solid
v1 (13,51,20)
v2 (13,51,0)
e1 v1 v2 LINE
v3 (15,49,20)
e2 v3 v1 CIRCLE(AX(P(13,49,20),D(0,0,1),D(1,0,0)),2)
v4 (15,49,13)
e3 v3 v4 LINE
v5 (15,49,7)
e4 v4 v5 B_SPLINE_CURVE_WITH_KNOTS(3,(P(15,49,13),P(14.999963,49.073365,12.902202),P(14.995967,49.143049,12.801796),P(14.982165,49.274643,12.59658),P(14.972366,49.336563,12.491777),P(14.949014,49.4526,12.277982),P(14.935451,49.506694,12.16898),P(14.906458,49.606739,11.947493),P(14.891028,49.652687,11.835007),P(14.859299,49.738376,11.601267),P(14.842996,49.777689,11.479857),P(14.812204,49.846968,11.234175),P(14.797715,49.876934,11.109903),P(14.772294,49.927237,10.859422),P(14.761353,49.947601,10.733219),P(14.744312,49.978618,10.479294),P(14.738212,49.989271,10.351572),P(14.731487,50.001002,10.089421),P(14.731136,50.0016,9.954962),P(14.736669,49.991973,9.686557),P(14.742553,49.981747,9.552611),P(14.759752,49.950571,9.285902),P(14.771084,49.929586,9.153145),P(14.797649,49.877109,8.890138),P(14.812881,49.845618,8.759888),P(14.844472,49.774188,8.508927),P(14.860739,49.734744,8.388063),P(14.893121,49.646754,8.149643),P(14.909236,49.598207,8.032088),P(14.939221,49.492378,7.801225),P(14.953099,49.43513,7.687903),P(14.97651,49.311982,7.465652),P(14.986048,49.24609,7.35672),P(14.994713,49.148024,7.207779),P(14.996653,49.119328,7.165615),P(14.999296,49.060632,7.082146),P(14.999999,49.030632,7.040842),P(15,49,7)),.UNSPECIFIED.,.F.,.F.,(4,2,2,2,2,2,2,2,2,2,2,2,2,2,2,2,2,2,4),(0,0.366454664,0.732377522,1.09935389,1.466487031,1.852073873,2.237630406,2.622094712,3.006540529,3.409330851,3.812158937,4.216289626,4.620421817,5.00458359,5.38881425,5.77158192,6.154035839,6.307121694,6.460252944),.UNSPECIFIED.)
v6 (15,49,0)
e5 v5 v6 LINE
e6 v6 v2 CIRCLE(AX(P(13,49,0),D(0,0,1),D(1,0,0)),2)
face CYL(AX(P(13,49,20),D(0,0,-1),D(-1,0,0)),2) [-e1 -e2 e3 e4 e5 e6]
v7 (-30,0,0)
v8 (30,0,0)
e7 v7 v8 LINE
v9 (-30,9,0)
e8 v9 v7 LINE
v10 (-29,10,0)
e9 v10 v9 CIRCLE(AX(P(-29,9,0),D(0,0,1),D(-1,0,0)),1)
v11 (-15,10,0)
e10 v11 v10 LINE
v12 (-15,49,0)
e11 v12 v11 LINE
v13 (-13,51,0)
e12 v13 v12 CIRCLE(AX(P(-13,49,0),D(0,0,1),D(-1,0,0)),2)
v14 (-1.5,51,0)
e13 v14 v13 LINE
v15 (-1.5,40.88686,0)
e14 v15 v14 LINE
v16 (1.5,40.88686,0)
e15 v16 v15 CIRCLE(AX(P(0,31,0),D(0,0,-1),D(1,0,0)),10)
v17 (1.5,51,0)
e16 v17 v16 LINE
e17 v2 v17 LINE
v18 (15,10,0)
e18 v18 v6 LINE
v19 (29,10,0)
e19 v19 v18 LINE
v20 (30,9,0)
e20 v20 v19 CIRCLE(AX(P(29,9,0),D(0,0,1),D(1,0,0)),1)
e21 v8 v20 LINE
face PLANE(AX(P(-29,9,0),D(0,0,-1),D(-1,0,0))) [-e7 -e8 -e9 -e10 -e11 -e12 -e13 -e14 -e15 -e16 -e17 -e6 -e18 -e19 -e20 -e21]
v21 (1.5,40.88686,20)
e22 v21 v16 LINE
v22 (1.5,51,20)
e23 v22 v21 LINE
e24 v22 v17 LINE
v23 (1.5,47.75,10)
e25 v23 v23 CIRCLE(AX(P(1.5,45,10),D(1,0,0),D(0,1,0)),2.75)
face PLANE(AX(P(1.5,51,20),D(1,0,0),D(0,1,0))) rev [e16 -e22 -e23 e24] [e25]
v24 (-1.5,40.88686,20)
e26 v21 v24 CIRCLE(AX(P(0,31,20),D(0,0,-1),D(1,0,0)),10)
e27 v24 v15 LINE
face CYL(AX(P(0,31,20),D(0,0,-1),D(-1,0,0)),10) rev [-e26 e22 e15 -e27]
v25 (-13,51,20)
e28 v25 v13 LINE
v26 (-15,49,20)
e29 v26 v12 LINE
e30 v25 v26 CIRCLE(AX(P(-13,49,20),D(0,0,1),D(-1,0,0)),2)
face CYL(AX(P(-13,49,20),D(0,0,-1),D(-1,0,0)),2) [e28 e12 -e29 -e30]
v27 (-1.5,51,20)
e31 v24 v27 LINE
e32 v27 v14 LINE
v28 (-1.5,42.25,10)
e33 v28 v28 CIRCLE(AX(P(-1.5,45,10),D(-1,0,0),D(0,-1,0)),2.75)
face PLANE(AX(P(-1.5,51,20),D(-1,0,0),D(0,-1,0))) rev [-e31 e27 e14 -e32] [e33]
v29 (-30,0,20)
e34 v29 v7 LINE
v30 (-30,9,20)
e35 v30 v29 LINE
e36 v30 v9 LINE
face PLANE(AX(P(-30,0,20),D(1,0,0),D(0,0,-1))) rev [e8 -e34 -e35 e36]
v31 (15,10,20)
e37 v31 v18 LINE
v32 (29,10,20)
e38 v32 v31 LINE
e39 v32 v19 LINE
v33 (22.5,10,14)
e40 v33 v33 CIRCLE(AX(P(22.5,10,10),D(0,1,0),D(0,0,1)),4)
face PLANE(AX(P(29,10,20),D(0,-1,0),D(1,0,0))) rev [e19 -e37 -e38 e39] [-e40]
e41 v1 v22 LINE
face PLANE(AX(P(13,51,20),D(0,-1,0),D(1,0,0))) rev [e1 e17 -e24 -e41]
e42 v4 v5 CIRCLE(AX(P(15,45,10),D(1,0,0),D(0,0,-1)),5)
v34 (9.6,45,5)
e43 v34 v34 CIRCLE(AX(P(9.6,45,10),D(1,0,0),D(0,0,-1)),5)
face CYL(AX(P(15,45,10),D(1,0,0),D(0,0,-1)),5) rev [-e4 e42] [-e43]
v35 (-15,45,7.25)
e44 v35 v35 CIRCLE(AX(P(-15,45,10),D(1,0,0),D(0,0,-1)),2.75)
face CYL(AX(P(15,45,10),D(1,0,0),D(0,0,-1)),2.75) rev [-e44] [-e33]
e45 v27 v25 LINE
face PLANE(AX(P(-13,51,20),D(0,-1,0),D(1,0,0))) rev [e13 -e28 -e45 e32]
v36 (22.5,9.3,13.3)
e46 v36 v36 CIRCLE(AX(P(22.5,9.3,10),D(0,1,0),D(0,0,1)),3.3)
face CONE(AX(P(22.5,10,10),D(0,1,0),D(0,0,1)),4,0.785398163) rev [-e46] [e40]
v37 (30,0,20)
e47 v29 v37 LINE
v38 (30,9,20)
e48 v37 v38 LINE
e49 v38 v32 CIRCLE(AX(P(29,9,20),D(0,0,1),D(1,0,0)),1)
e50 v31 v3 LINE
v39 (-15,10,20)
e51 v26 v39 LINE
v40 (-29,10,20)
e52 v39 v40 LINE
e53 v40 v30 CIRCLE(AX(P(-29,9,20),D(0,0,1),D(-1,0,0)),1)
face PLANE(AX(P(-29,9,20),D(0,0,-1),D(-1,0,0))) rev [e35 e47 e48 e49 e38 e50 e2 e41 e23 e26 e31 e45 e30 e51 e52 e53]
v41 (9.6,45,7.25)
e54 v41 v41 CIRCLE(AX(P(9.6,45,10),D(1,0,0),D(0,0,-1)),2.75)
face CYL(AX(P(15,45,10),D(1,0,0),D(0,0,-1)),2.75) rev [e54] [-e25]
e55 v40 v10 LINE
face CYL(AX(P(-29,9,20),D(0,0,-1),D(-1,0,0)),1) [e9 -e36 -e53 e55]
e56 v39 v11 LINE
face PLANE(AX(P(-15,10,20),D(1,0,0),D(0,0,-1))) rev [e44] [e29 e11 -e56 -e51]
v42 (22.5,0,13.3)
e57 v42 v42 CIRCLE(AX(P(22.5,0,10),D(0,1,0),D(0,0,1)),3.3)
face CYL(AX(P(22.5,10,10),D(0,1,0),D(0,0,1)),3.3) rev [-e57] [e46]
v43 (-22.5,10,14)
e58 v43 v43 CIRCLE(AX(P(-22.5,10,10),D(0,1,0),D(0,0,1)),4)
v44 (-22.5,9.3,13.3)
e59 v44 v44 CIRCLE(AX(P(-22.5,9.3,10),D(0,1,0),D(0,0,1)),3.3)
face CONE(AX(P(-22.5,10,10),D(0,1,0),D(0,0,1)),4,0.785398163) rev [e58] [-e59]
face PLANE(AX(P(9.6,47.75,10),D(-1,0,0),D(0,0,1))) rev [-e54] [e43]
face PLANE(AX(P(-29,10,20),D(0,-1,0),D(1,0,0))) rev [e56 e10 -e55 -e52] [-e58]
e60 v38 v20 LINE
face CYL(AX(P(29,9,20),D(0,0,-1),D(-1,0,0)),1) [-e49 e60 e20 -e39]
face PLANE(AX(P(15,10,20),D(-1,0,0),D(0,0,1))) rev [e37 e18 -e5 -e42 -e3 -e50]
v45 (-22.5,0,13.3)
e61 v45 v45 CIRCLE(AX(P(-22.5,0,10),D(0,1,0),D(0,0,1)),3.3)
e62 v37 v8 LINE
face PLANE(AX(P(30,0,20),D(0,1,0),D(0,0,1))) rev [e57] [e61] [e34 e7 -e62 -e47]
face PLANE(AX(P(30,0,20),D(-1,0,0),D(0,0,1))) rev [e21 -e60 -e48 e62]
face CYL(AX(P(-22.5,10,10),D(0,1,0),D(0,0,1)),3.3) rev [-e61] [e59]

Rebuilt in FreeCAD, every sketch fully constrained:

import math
import FreeCAD as App
import Part
import Sketcher
Q = App.Units.Quantity

doc = App.newDocument("Part")
body = doc.addObject("PartDesign::Body", "Body")

sketch1 = body.newObject("Sketcher::SketchObject", "Sketch")
sketch1.AttachmentSupport = (doc.getObject("XY_Plane"), [""])
sketch1.MapMode = "FlatFace"
sketch1.addGeometry([
    Part.LineSegment(App.Vector(-30, 0, 0), App.Vector(30, 0, 0)),
    Part.LineSegment(App.Vector(30, 0, 0), App.Vector(30, 9, 0)),
    Part.ArcOfCircle(Part.Circle(App.Vector(29, 9, 0), App.Vector(0, 0, 1), 1), math.radians(0), math.radians(90)),
    Part.LineSegment(App.Vector(29, 10, 0), App.Vector(15, 10, 0)),
    Part.LineSegment(App.Vector(15, 10, 0), App.Vector(15, 49, 0)),
    Part.ArcOfCircle(Part.Circle(App.Vector(13, 49, 0), App.Vector(0, 0, 1), 2), math.radians(0), math.radians(90)),
    Part.LineSegment(App.Vector(13, 51, 0), App.Vector(1.5, 51, 0)),
    Part.LineSegment(App.Vector(1.5, 51, 0), App.Vector(1.5, 40.9, 0)),
    Part.ArcOfCircle(Part.Circle(App.Vector(0, 31, 0), App.Vector(0, 0, 1), 10), math.radians(99), math.radians(441)),
    Part.LineSegment(App.Vector(-1.5, 40.9, 0), App.Vector(-1.5, 51, 0)),
    Part.LineSegment(App.Vector(-1.5, 51, 0), App.Vector(-13, 51, 0)),
    Part.ArcOfCircle(Part.Circle(App.Vector(-13, 49, 0), App.Vector(0, 0, 1), 2), math.radians(90), math.radians(180)),
    Part.LineSegment(App.Vector(-15, 49, 0), App.Vector(-15, 10, 0)),
    Part.LineSegment(App.Vector(-15, 10, 0), App.Vector(-29, 10, 0)),
    Part.ArcOfCircle(Part.Circle(App.Vector(-29, 9, 0), App.Vector(0, 0, 1), 1), math.radians(90), math.radians(180)),
    Part.LineSegment(App.Vector(-30, 9, 0), App.Vector(-30, 0, 0)),
], False)
sketch1.addConstraint([
    Sketcher.Constraint("Coincident", 0, 2, 1, 1),
    Sketcher.Constraint("Tangent", 1, 2, 2, 1),
    Sketcher.Constraint("Tangent", 2, 2, 3, 1),
    Sketcher.Constraint("Coincident", 3, 2, 4, 1),
    Sketcher.Constraint("Tangent", 4, 2, 5, 1),
    Sketcher.Constraint("Tangent", 5, 2, 6, 1),
    Sketcher.Constraint("Coincident", 6, 2, 7, 1),
    Sketcher.Constraint("Coincident", 7, 2, 8, 2),
    Sketcher.Constraint("Coincident", 8, 1, 9, 1),
    Sketcher.Constraint("Coincident", 9, 2, 10, 1),
    Sketcher.Constraint("Tangent", 10, 2, 11, 1),
    Sketcher.Constraint("Tangent", 11, 2, 12, 1),
    Sketcher.Constraint("Coincident", 12, 2, 13, 1),
    Sketcher.Constraint("Tangent", 13, 2, 14, 1),
    Sketcher.Constraint("Tangent", 14, 2, 15, 1),
    Sketcher.Constraint("Coincident", 15, 2, 0, 1),
    Sketcher.Constraint("Horizontal", 0),
    Sketcher.Constraint("Vertical", 1),
    Sketcher.Constraint("Horizontal", 3),
    Sketcher.Constraint("Vertical", 4),
    Sketcher.Constraint("Horizontal", 6),
    Sketcher.Constraint("Vertical", 7),
    Sketcher.Constraint("Vertical", 9),
    Sketcher.Constraint("Horizontal", 10),
    Sketcher.Constraint("Vertical", 12),
    Sketcher.Constraint("Horizontal", 13),
    Sketcher.Constraint("Vertical", 15),
    Sketcher.Constraint("Equal", 5, 11),
    Sketcher.Constraint("Equal", 2, 14),
    Sketcher.Constraint("Symmetric", 0, 2, 15, 2, -1, 1),
    Sketcher.Constraint("Symmetric", 5, 3, 11, 3, -2),
    Sketcher.Constraint("Symmetric", 7, 2, 8, 1, -2),
    Sketcher.Constraint("Horizontal", 2, 3, 14, 3),
    Sketcher.Constraint("Radius", 2, Q("1 mm")),
    Sketcher.Constraint("Radius", 5, Q("2 mm")),
    Sketcher.Constraint("Radius", 8, Q("10 mm")),
    Sketcher.Constraint("DistanceX", 0, 1, 0, 2, Q("60 mm")),
    Sketcher.Constraint("DistanceX", 3, 2, 3, 1, Q("14 mm")),
    Sketcher.Constraint("DistanceY", 1, 1, 1, 2, Q("9 mm")),
    Sketcher.Constraint("DistanceY", 4, 1, 4, 2, Q("39 mm")),
    Sketcher.Constraint("DistanceX", 6, 2, 6, 1, Q("11.5 mm")),
    Sketcher.Constraint("DistanceY", -1, 1, 8, 3, Q("31 mm")),
])
pad1 = body.newObject("PartDesign::Pad", "Pad")
pad1.Profile = sketch1
pad1.Length = 20

sketch2 = body.newObject("Sketcher::SketchObject", "Sketch001")
sketch2.AttachmentSupport = (doc.getObject("XZ_Plane"), [""])
sketch2.MapMode = "FlatFace"
sketch2.AttachmentOffset = App.Placement(App.Vector(0, 0, -10), App.Rotation())
sketch2.addGeometry([
    Part.Circle(App.Vector(-22.5, 10, 0), App.Vector(0, 0, 1), 3.3),
    Part.Circle(App.Vector(22.5, 10, 0), App.Vector(0, 0, 1), 3.3),
], False)
sketch2.addConstraint([
    Sketcher.Constraint("Equal", 0, 1),
    Sketcher.Constraint("Symmetric", 0, 3, 1, 3, -2),
    Sketcher.Constraint("Diameter", 0, Q("6.6 mm")),
    Sketcher.Constraint("DistanceY", -1, 1, 0, 3, Q("10 mm")),
    Sketcher.Constraint("DistanceX", 0, 3, 1, 3, Q("45 mm")),
])
doc.recompute()
hole = body.newObject("PartDesign::Hole", "Hole")
hole.Profile = sketch2
hole.ThreadType = "None"
hole.Diameter = 6.6
hole.DepthType = "ThroughAll"
hole.HoleCutType = "Countersink"
hole.HoleCutDiameter = 8
hole.HoleCutCountersinkAngle = 90
hole.Reversed = True

sketch3 = body.newObject("Sketcher::SketchObject", "Sketch002")
sketch3.AttachmentSupport = (doc.getObject("YZ_Plane"), [""])
sketch3.MapMode = "FlatFace"
sketch3.AttachmentOffset = App.Placement(App.Vector(0, 0, 15), App.Rotation())
sketch3.addGeometry(Part.Circle(App.Vector(45, 10, 0), App.Vector(0, 0, 1), 2.8), False)
sketch3.addConstraint([
    Sketcher.Constraint("Diameter", 0, Q("5.5 mm")),
    Sketcher.Constraint("DistanceX", -1, 1, 0, 3, Q("45 mm")),
    Sketcher.Constraint("DistanceY", -1, 1, 0, 3, Q("10 mm")),
])
doc.recompute()
hole2 = body.newObject("PartDesign::Hole", "Hole001")
hole2.Profile = sketch3
hole2.ThreadType = "None"
hole2.Diameter = 5.5
hole2.DepthType = "ThroughAll"
hole2.HoleCutType = "Counterbore"
hole2.HoleCutDiameter = 10
hole2.HoleCutDepth = 5.4

doc.recompute()
